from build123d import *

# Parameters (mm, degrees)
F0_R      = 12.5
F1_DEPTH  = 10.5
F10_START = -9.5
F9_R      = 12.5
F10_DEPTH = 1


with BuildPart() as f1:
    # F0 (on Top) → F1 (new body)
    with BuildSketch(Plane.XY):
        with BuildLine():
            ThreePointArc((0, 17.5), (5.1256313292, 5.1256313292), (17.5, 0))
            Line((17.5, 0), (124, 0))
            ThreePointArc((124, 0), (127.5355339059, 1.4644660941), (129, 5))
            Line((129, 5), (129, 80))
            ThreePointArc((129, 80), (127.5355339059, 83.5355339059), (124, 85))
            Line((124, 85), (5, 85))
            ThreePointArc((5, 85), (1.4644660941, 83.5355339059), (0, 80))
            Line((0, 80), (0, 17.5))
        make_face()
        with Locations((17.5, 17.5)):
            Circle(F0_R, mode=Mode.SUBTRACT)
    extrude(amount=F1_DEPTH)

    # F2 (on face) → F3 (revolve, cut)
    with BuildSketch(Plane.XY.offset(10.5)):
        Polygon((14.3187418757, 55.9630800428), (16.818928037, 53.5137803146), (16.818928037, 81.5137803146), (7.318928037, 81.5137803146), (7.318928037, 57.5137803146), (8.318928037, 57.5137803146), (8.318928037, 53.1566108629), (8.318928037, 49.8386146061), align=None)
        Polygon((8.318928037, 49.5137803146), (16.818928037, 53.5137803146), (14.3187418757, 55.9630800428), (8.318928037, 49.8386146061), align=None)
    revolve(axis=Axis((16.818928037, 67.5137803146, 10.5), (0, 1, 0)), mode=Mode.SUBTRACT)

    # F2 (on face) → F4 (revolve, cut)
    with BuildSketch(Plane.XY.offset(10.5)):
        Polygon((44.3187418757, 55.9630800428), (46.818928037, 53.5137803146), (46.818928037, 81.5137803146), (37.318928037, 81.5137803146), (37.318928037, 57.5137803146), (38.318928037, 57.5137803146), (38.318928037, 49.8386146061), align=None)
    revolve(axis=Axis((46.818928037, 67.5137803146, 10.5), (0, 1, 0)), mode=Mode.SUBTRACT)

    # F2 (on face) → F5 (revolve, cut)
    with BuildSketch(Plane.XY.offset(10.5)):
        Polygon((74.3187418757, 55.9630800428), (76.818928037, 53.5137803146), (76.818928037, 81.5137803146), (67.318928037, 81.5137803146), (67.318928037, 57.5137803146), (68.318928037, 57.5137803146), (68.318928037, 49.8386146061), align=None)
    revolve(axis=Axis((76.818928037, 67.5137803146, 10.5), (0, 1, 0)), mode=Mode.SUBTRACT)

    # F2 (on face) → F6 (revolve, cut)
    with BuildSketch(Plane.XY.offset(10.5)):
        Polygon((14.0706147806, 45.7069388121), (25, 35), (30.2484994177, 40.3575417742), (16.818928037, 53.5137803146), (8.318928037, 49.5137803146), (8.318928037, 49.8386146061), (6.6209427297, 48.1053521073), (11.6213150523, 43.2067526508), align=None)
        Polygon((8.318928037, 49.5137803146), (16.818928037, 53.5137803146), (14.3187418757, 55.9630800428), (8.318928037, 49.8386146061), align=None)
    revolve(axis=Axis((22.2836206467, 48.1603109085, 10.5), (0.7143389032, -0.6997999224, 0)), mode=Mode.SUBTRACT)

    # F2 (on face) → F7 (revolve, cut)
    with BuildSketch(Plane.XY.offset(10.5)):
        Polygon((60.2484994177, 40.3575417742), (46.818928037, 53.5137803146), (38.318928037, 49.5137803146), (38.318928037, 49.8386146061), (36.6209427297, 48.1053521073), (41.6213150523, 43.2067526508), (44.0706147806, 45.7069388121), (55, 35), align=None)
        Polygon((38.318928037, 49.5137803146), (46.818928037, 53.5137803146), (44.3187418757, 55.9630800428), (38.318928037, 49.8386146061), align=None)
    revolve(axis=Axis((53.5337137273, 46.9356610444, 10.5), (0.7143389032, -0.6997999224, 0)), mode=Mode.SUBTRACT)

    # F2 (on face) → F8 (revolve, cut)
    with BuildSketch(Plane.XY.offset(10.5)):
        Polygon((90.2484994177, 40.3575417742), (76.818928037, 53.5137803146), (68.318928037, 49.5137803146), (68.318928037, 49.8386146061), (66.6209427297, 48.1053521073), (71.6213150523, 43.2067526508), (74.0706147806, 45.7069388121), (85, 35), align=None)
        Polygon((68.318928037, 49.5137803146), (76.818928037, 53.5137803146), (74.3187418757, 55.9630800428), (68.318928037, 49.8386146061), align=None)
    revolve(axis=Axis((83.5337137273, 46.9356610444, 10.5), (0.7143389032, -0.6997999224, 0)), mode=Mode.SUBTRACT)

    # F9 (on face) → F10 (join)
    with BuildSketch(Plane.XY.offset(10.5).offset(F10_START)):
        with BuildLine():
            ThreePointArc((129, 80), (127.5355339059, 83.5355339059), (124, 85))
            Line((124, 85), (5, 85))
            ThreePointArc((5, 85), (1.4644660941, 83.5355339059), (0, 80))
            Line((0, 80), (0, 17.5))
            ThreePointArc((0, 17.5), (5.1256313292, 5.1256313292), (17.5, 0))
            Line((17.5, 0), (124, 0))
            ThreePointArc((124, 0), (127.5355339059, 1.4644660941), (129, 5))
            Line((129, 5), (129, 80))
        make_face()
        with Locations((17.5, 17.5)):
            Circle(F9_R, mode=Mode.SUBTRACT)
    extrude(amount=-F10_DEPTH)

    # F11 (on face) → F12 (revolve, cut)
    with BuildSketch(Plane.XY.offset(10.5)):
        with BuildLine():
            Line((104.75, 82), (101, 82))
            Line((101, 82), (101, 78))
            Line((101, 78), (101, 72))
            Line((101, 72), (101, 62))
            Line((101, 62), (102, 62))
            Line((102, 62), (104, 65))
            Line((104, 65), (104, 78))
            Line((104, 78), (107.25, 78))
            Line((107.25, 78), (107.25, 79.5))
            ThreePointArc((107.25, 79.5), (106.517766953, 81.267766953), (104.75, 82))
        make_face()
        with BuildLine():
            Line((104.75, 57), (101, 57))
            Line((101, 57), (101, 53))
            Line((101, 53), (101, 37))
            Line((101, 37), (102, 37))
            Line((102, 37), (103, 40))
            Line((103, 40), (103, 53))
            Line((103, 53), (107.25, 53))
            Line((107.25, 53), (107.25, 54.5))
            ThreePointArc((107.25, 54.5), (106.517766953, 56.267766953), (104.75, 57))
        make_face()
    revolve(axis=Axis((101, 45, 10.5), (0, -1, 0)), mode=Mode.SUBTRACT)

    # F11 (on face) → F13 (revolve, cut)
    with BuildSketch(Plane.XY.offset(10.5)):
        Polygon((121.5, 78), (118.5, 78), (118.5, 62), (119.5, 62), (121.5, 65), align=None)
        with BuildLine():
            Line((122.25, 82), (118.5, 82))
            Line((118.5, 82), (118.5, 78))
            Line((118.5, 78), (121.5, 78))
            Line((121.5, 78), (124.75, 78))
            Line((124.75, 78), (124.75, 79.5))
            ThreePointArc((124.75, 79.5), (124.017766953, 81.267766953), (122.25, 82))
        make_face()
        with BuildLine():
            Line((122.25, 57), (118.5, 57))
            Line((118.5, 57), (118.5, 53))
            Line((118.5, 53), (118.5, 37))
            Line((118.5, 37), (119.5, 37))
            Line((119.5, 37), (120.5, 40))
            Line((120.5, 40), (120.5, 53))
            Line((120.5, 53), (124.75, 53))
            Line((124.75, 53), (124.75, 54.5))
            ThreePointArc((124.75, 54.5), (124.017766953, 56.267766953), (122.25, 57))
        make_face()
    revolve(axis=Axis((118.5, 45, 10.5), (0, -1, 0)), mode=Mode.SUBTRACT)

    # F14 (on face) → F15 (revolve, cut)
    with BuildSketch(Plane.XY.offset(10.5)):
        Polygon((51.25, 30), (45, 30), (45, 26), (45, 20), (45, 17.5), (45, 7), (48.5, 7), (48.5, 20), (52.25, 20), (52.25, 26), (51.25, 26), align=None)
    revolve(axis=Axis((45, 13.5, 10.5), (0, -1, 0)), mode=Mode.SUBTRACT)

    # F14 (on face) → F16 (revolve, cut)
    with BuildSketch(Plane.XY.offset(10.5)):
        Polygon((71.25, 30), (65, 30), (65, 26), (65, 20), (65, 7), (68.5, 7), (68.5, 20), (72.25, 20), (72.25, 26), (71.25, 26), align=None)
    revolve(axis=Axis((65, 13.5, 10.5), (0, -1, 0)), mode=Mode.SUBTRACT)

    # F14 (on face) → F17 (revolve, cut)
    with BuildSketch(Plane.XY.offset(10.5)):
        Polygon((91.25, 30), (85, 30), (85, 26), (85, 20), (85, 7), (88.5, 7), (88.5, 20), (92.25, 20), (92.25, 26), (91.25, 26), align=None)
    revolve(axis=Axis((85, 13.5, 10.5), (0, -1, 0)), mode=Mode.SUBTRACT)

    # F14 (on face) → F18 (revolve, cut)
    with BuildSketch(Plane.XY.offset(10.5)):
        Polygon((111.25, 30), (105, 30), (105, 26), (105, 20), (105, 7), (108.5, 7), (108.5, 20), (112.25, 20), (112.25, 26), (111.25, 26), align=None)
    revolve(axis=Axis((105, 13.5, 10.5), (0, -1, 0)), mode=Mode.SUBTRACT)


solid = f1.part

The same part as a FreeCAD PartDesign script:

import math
import FreeCAD as App
import Part
import Sketcher
from FreeCAD import Vector


def add_polygon(sketch, points):
    """Adds a closed chain of lines whose ends are joined by coincident constraints."""
    first, n = sketch.GeometryCount, len(points)
    for a, b in zip(points, points[1:] + points[:1]):
        sketch.addGeometry(Part.LineSegment(App.Vector(*a, 0), App.Vector(*b, 0)), False)
    for i in range(n):
        sketch.addConstraint(Sketcher.Constraint("Coincident", first + i, 2, first + (i + 1) % n, 1))

doc = App.newDocument("Part")
params = doc.addObject("Spreadsheet::Sheet", "Params")
for row, (alias, value) in enumerate([
    ("sketch1_diameter", "25 mm"),
    ("sketch1_radius", "5 mm"),
    ("sketch1_radius2", "17.5 mm"),
    ("sketch1_width", "119 mm"),
    ("sketch1_height", "75 mm"),
    ("pad1_length", "10.5 mm"),
    ("sketch2_width", "1 mm"),
    ("sketch2_height", "28 mm"),
    ("sketch2_height2", "24 mm"),
    ("sketch2_height3", "8 mm"),
    ("sketch2_width2", "9.5 mm"),
    ("groove_angle", "360 deg"),
    ("sketch3_width", "1 mm"),
    ("sketch3_height", "28 mm"),
    ("sketch3_height2", "24 mm"),
    ("sketch3_width2", "9.5 mm"),
    ("sketch3_length", "3.5 mm"),
    ("groove2_angle", "360 deg"),
    ("sketch4_width", "1 mm"),
    ("sketch4_height", "28 mm"),
    ("sketch4_height2", "24 mm"),
    ("sketch4_width2", "9.5 mm"),
    ("sketch4_length", "3.5 mm"),
    ("groove3_angle", "360 deg"),
    ("sketch5_length", "7 mm"),
    ("sketch5_length2", "15.3 mm"),
    ("sketch5_length3", "7.5 mm"),
    ("sketch5_length4", "18.8 mm"),
    ("groove4_angle", "360 deg"),
    ("sketch6_length", "7 mm"),
    ("sketch6_length2", "18.8 mm"),
    ("sketch6_length3", "3.5 mm"),
    ("sketch6_length4", "7.5 mm"),
    ("groove5_angle", "360 deg"),
    ("sketch7_length", "7 mm"),
    ("sketch7_length2", "18.8 mm"),
    ("sketch7_length3", "3.5 mm"),
    ("sketch7_length4", "7.5 mm"),
    ("groove6_angle", "360 deg"),
    ("sketch8_diameter", "25 mm"),
    ("sketch8_radius", "5 mm"),
    ("sketch8_radius2", "17.5 mm"),
    ("sketch8_width", "119 mm"),
    ("sketch8_height", "75 mm"),
    ("pad2_length", "1 mm"),
    ("sketch9_radius", "2.5 mm"),
    ("sketch9_width", "1 mm"),
    ("sketch9_height", "20 mm"),
    ("sketch9_height2", "13 mm"),
    ("sketch9_height3", "45 mm"),
    ("groove7_angle", "360 deg"),
    ("sketch10_radius", "2.5 mm"),
    ("sketch10_width", "1 mm"),
    ("sketch10_height", "13 mm"),
    ("sketch10_height2", "20 mm"),
    ("sketch10_height3", "45 mm"),
    ("groove8_angle", "360 deg"),
    ("sketch11_width", "1 mm"),
    ("sketch11_height", "23 mm"),
    ("sketch11_height2", "13 mm"),
    ("sketch11_height3", "6 mm"),
    ("sketch11_width2", "3.5 mm"),
    ("groove9_angle", "360 deg"),
    ("sketch12_width", "1 mm"),
    ("sketch12_height", "23 mm"),
    ("sketch12_height2", "13 mm"),
    ("sketch12_height3", "6 mm"),
    ("sketch12_width2", "3.5 mm"),
    ("groove10_angle", "360 deg"),
    ("sketch13_width", "1 mm"),
    ("sketch13_height", "23 mm"),
    ("sketch13_height2", "13 mm"),
    ("sketch13_height3", "6 mm"),
    ("sketch13_width2", "3.5 mm"),
    ("groove11_angle", "360 deg"),
    ("sketch14_width", "1 mm"),
    ("sketch14_height", "23 mm"),
    ("sketch14_height2", "13 mm"),
    ("sketch14_height3", "6 mm"),
    ("sketch14_width2", "3.5 mm"),
    ("groove12_angle", "360 deg"),
], start=1):
    params.set(f"A{row}", alias)
    params.set(f"B{row}", "=" + value)
    params.setAlias(f"B{row}", alias)

body = doc.addObject("PartDesign::Body", "Body")

sketch1 = body.newObject("Sketcher::SketchObject", "Sketch")
sketch1.AttachmentSupport = (doc.getObject("XY_Plane"), [""])
sketch1.MapMode = "FlatFace"
sketch1.addGeometry([
    Part.ArcOfCircle(Part.Circle(Vector(18, 18, 0), Vector(0, 0, 1), 18), math.radians(180), math.radians(270)),
    Part.LineSegment(Vector(18, 0, 0), Vector(124, 0, 0)),
    Part.ArcOfCircle(Part.Circle(Vector(124, 5, 0), Vector(0, 0, 1), 5), math.radians(-90), math.radians(0)),
    Part.LineSegment(Vector(129, 5, 0), Vector(129, 80, 0)),
    Part.ArcOfCircle(Part.Circle(Vector(124, 80, 0), Vector(0, 0, 1), 5), math.radians(0), math.radians(90)),
    Part.LineSegment(Vector(124, 85, 0), Vector(5, 85, 0)),
    Part.ArcOfCircle(Part.Circle(Vector(5, 80, 0), Vector(0, 0, 1), 5), math.radians(90), math.radians(180)),
    Part.LineSegment(Vector(0, 80, 0), Vector(0, 18, 0)),
    Part.Circle(Vector(18, 18, 0), Vector(0, 0, 1), 12),
], False)
sketch1.addConstraint([
    Sketcher.Constraint("Tangent", 0, 2, 1, 1),
    Sketcher.Constraint("Tangent", 1, 2, 2, 1),
    Sketcher.Constraint("Tangent", 2, 2, 3, 1),
    Sketcher.Constraint("Tangent", 3, 2, 4, 1),
    Sketcher.Constraint("Tangent", 4, 2, 5, 1),
    Sketcher.Constraint("Tangent", 5, 2, 6, 1),
    Sketcher.Constraint("Tangent", 6, 2, 7, 1),
    Sketcher.Constraint("Tangent", 7, 2, 0, 1),
    Sketcher.Constraint("Horizontal", 1),
    Sketcher.Constraint("Vertical", 3),
    Sketcher.Constraint("Horizontal", 5),
    Sketcher.Constraint("Vertical", 7),
    Sketcher.Constraint("Coincident", 8, 3, 0, 3),
    Sketcher.Constraint("Equal", 2, 4),
    Sketcher.Constraint("Equal", 4, 6),
    Sketcher.Constraint("PointOnObject", 0, 2, -1),
    Sketcher.Constraint("PointOnObject", 6, 2, -2),
    Sketcher.Constraint("Diameter", 8, 25.0),
    Sketcher.Constraint("Radius", 2, 5.0),
    Sketcher.Constraint("Radius", 0, 17.5),
    Sketcher.Constraint("DistanceX", 5, 2, 5, 1, 119.0),
    Sketcher.Constraint("DistanceY", 3, 1, 3, 2, 75.0),
])
sketch1.setExpression("Constraints[17]", "Params.sketch1_diameter")
sketch1.setExpression("Constraints[18]", "Params.sketch1_radius")
sketch1.setExpression("Constraints[19]", "Params.sketch1_radius2")
sketch1.setExpression("Constraints[20]", "Params.sketch1_width")
sketch1.setExpression("Constraints[21]", "Params.sketch1_height")
pad1 = body.newObject("PartDesign::Pad", "Pad")
pad1.Profile = sketch1
pad1.setExpression("Length", "Params.pad1_length")

sketch2 = body.newObject("Sketcher::SketchObject", "Sketch001")
sketch2.AttachmentSupport = (doc.getObject("XY_Plane"), [""])
sketch2.MapMode = "FlatFace"
sketch2.AttachmentOffset = App.Placement(Vector(0, 0, 10.5), App.Rotation())
add_polygon(sketch2, [(16.8, 53.5), (16.8, 81.5), (7.3, 81.5), (7.3, 57.5), (8.3, 57.5), (8.3, 49.5)])
sketch2.addGeometry(Part.LineSegment(Vector(16.8, 49.5, 0), Vector(16.8, 81.5, 0)), True)
sketch2.addConstraint([
    Sketcher.Constraint("Vertical", 0),
    Sketcher.Constraint("Horizontal", 1),
    Sketcher.Constraint("Vertical", 2),
    Sketcher.Constraint("Horizontal", 3),
    Sketcher.Constraint("Vertical", 4),
    Sketcher.Constraint("Vertical", 6),
    Sketcher.Constraint("Coincident", 6, 2, 0, 2),
    Sketcher.Constraint("Horizontal", 4, 2, 6, 1),
    Sketcher.Constraint("DistanceX", 3, 1, 3, 2, 1.0),
    Sketcher.Constraint("DistanceY", 0, 1, 0, 2, 28.0),
    Sketcher.Constraint("DistanceY", 2, 2, 2, 1, 24.0),
    Sketcher.Constraint("DistanceY", 4, 2, 4, 1, 8.0),
    Sketcher.Constraint("DistanceX", 1, 2, 1, 1, 9.5),
    Sketcher.Constraint("DistanceX", -1, 1, 0, 2, 16.818928),
    Sketcher.Constraint("DistanceY", -1, 1, 0, 2, 81.51378),
])
sketch2.setExpression("Constraints[14]", "Params.sketch2_width")
sketch2.setExpression("Constraints[15]", "Params.sketch2_height")
sketch2.setExpression("Constraints[16]", "Params.sketch2_height2")
sketch2.setExpression("Constraints[17]", "Params.sketch2_height3")
sketch2.setExpression("Constraints[18]", "Params.sketch2_width2")
groove = body.newObject("PartDesign::Groove", "Groove")
groove.Profile = sketch2
groove.ReferenceAxis = (sketch2, ["Axis0"])
groove.setExpression("Angle", "Params.groove_angle")

sketch3 = body.newObject("Sketcher::SketchObject", "Sketch002")
sketch3.AttachmentSupport = (doc.getObject("XY_Plane"), [""])
sketch3.MapMode = "FlatFace"
sketch3.AttachmentOffset = App.Placement(Vector(0, 0, 10.5), App.Rotation())
add_polygon(sketch3, [(44.3, 56), (46.8, 53.5), (46.8, 81.5), (37.3, 81.5), (37.3, 57.5), (38.3, 57.5), (38.3, 49.8)])
sketch3.addGeometry(Part.LineSegment(Vector(46.8, 49.8, 0), Vector(46.8, 81.5, 0)), True)
sketch3.addConstraint([
    Sketcher.Constraint("Vertical", 1),
    Sketcher.Constraint("Horizontal", 2),
    Sketcher.Constraint("Vertical", 3),
    Sketcher.Constraint("Horizontal", 4),
    Sketcher.Constraint("Vertical", 5),
    Sketcher.Constraint("Vertical", 7),
    Sketcher.Constraint("Coincident", 7, 2, 1, 2),
    Sketcher.Constraint("Perpendicular", 0, 6),
    Sketcher.Constraint("Horizontal", 5, 2, 7, 1),
    Sketcher.Constraint("DistanceX", 4, 1, 4, 2, 1.0),
    Sketcher.Constraint("DistanceY", 1, 1, 1, 2, 28.0),
    Sketcher.Constraint("DistanceY", 3, 2, 3, 1, 24.0),
    Sketcher.Constraint("DistanceX", 2, 2, 2, 1, 9.5),
    Sketcher.Constraint("Distance", 0, 3.5),
    Sketcher.Constraint("DistanceY", 0, 2, 6, 2, 2.4493),
    Sketcher.Constraint("DistanceX", -1, 1, 0, 2, 46.818928),
    Sketcher.Constraint("DistanceY", -1, 1, 0, 2, 53.51378),
])
sketch3.setExpression("Constraints[16]", "Params.sketch3_width")
sketch3.setExpression("Constraints[17]", "Params.sketch3_height")
sketch3.setExpression("Constraints[18]", "Params.sketch3_height2")
sketch3.setExpression("Constraints[19]", "Params.sketch3_width2")
sketch3.setExpression("Constraints[20]", "Params.sketch3_length")
groove2 = body.newObject("PartDesign::Groove", "Groove001")
groove2.Profile = sketch3
groove2.ReferenceAxis = (sketch3, ["Axis0"])
groove2.setExpression("Angle", "Params.groove2_angle")

sketch4 = body.newObject("Sketcher::SketchObject", "Sketch003")
sketch4.AttachmentSupport = (doc.getObject("XY_Plane"), [""])
sketch4.MapMode = "FlatFace"
sketch4.AttachmentOffset = App.Placement(Vector(0, 0, 10.5), App.Rotation())
add_polygon(sketch4, [(74.3, 56), (76.8, 53.5), (76.8, 81.5), (67.3, 81.5), (67.3, 57.5), (68.3, 57.5), (68.3, 49.8)])
sketch4.addGeometry(Part.LineSegment(Vector(76.8, 49.8, 0), Vector(76.8, 81.5, 0)), True)
sketch4.addConstraint([
    Sketcher.Constraint("Vertical", 1),
    Sketcher.Constraint("Horizontal", 2),
    Sketcher.Constraint("Vertical", 3),
    Sketcher.Constraint("Horizontal", 4),
    Sketcher.Constraint("Vertical", 5),
    Sketcher.Constraint("Vertical", 7),
    Sketcher.Constraint("Coincident", 7, 2, 1, 2),
    Sketcher.Constraint("Perpendicular", 0, 6),
    Sketcher.Constraint("Horizontal", 5, 2, 7, 1),
    Sketcher.Constraint("DistanceX", 4, 1, 4, 2, 1.0),
    Sketcher.Constraint("DistanceY", 1, 1, 1, 2, 28.0),
    Sketcher.Constraint("DistanceY", 3, 2, 3, 1, 24.0),
    Sketcher.Constraint("DistanceX", 2, 2, 2, 1, 9.5),
    Sketcher.Constraint("Distance", 0, 3.5),
    Sketcher.Constraint("DistanceY", 0, 2, 6, 2, 2.4493),
    Sketcher.Constraint("DistanceX", -1, 1, 0, 2, 76.818928),
    Sketcher.Constraint("DistanceY", -1, 1, 0, 2, 53.51378),
])
sketch4.setExpression("Constraints[16]", "Params.sketch4_width")
sketch4.setExpression("Constraints[17]", "Params.sketch4_height")
sketch4.setExpression("Constraints[18]", "Params.sketch4_height2")
sketch4.setExpression("Constraints[19]", "Params.sketch4_width2")
sketch4.setExpression("Constraints[20]", "Params.sketch4_length")
groove3 = body.newObject("PartDesign::Groove", "Groove002")
groove3.Profile = sketch4
groove3.ReferenceAxis = (sketch4, ["Axis0"])
groove3.setExpression("Angle", "Params.groove3_angle")

sketch5 = body.newObject("Sketcher::SketchObject", "Sketch004")
sketch5.AttachmentSupport = (doc.getObject("XY_Plane"), [""])
sketch5.MapMode = "FlatFace"
sketch5.AttachmentOffset = App.Placement(Vector(0, 0, 10.5), App.Rotation())
add_polygon(sketch5, [(14.1, 45.7), (25, 35), (30.2, 40.4), (16.8, 53.5), (14.3, 56), (8.3, 49.8), (6.6, 48.1), (11.6, 43.2)])
sketch5.addGeometry(Part.LineSegment(Vector(14.3, 56, 0), Vector(30.2, 40.4, 0)), True)
sketch5.addConstraint([
    Sketcher.Constraint("Coincident", 8, 1, 3, 2),
    Sketcher.Constraint("Coincident", 8, 2, 1, 2),
    Sketcher.Constraint("Perpendicular", 0, 1),
    Sketcher.Constraint("Perpendicular", 1, 2),
    Sketcher.Constraint("Parallel", 2, 3),
    Sketcher.Constraint("Perpendicular", 3, 4),
    Sketcher.Constraint("Parallel", 4, 5),
    Sketcher.Constraint("Perpendicular", 5, 6),
    Sketcher.Constraint("Perpendicular", 6, 7),
    Sketcher.Constraint("Equal", 3, 7),
    Sketcher.Constraint("Distance", 6, 7.0),
    Sketcher.Constraint("DistanceX", -1, 1, 0, 2, 25.0),
    Sketcher.Constraint("DistanceY", -1, 1, 0, 2, 35.0),
    Sketcher.Constraint("Distance", 0, 15.3),
    Sketcher.Constraint("Distance", 1, 7.5),
    Sketcher.Constraint("Distance", 2, 18.8),
    Sketcher.Constraint("DistanceX", 4, 2, 2, 2, 8.5),
    Sketcher.Constraint("DistanceX", -1, 1, 1, 2, 30.248499),
])
sketch5.setExpression("Constraints[18]", "Params.sketch5_length")
sketch5.setExpression("Constraints[21]", "Params.sketch5_length2")
sketch5.setExpression("Constraints[22]", "Params.sketch5_length3")
sketch5.setExpression("Constraints[23]", "Params.sketch5_length4")
groove4 = body.newObject("PartDesign::Groove", "Groove003")
groove4.Profile = sketch5
groove4.ReferenceAxis = (sketch5, ["Axis0"])
groove4.setExpression("Angle", "Params.groove4_angle")

sketch6 = body.newObject("Sketcher::SketchObject", "Sketch005")
sketch6.AttachmentSupport = (doc.getObject("XY_Plane"), [""])
sketch6.MapMode = "FlatFace"
sketch6.AttachmentOffset = App.Placement(Vector(0, 0, 10.5), App.Rotation())
add_polygon(sketch6, [(60.2, 40.4), (46.8, 53.5), (44.3, 56), (38.3, 49.8), (36.6, 48.1), (41.6, 43.2), (44.1, 45.7), (55, 35)])
sketch6.addGeometry(Part.LineSegment(Vector(44.3, 56, 0), Vector(60.2, 40.4, 0)), True)
sketch6.addConstraint([
    Sketcher.Constraint("Coincident", 8, 1, 1, 2),
    Sketcher.Constraint("Coincident", 8, 2, 7, 2),
    Sketcher.Constraint("Parallel", 0, 1),
    Sketcher.Constraint("Perpendicular", 1, 2),
    Sketcher.Constraint("Parallel", 2, 3),
    Sketcher.Constraint("Perpendicular", 3, 4),
    Sketcher.Constraint("Perpendicular", 4, 5),
    Sketcher.Constraint("Perpendicular", 5, 6),
    Sketcher.Constraint("Perpendicular", 6, 7),
    Sketcher.Constraint("Equal", 1, 5),
    Sketcher.Constraint("Distance", 4, 7.0),
    Sketcher.Constraint("DistanceX", -1, 1, 6, 2, 55.0),
    Sketcher.Constraint("DistanceY", -1, 1, 6, 2, 35.0),
    Sketcher.Constraint("Distance", 0, 18.8),
    Sketcher.Constraint("Distance", 1, 3.5),
    Sketcher.Constraint("Distance", 7, 7.5),
    Sketcher.Constraint("DistanceX", 2, 2, 0, 2, 8.5),
    Sketcher.Constraint("DistanceX", -1, 1, 7, 2, 60.248499),
])
sketch6.setExpression("Constraints[18]", "Params.sketch6_length")
sketch6.setExpression("Constraints[21]", "Params.sketch6_length2")
sketch6.setExpression("Constraints[22]", "Params.sketch6_length3")
sketch6.setExpression("Constraints[23]", "Params.sketch6_length4")
groove5 = body.newObject("PartDesign::Groove", "Groove004")
groove5.Profile = sketch6
groove5.ReferenceAxis = (sketch6, ["Axis0"])
groove5.setExpression("Angle", "Params.groove5_angle")

sketch7 = body.newObject("Sketcher::SketchObject", "Sketch006")
sketch7.AttachmentSupport = (doc.getObject("XY_Plane"), [""])
sketch7.MapMode = "FlatFace"
sketch7.AttachmentOffset = App.Placement(Vector(0, 0, 10.5), App.Rotation())
add_polygon(sketch7, [(90.2, 40.4), (76.8, 53.5), (74.3, 56), (68.3, 49.8), (66.6, 48.1), (71.6, 43.2), (74.1, 45.7), (85, 35)])
sketch7.addGeometry(Part.LineSegment(Vector(74.3, 56, 0), Vector(90.2, 40.4, 0)), True)
sketch7.addConstraint([
    Sketcher.Constraint("Coincident", 8, 1, 1, 2),
    Sketcher.Constraint("Coincident", 8, 2, 7, 2),
    Sketcher.Constraint("Parallel", 0, 1),
    Sketcher.Constraint("Perpendicular", 1, 2),
    Sketcher.Constraint("Parallel", 2, 3),
    Sketcher.Constraint("Perpendicular", 3, 4),
    Sketcher.Constraint("Perpendicular", 4, 5),
    Sketcher.Constraint("Perpendicular", 5, 6),
    Sketcher.Constraint("Perpendicular", 6, 7),
    Sketcher.Constraint("Equal", 1, 5),
    Sketcher.Constraint("Distance", 4, 7.0),
    Sketcher.Constraint("DistanceX", -1, 1, 6, 2, 85.0),
    Sketcher.Constraint("DistanceY", -1, 1, 6, 2, 35.0),
    Sketcher.Constraint("Distance", 0, 18.8),
    Sketcher.Constraint("Distance", 1, 3.5),
    Sketcher.Constraint("Distance", 7, 7.5),
    Sketcher.Constraint("DistanceX", 2, 2, 0, 2, 8.5),
    Sketcher.Constraint("DistanceX", -1, 1, 7, 2, 90.248499),
])
sketch7.setExpression("Constraints[18]", "Params.sketch7_length")
sketch7.setExpression("Constraints[21]", "Params.sketch7_length2")
sketch7.setExpression("Constraints[22]", "Params.sketch7_length3")
sketch7.setExpression("Constraints[23]", "Params.sketch7_length4")
groove6 = body.newObject("PartDesign::Groove", "Groove005")
groove6.Profile = sketch7
groove6.ReferenceAxis = (sketch7, ["Axis0"])
groove6.setExpression("Angle", "Params.groove6_angle")

sketch8 = body.newObject("Sketcher::SketchObject", "Sketch007")
sketch8.AttachmentSupport = (doc.getObject("XY_Plane"), [""])
sketch8.MapMode = "FlatFace"
sketch8.AttachmentOffset = App.Placement(Vector(0, 0, 1), App.Rotation())
sketch8.addGeometry([
    Part.ArcOfCircle(Part.Circle(Vector(124, 80, 0), Vector(0, 0, 1), 5), math.radians(0), math.radians(90)),
    Part.LineSegment(Vector(124, 85, 0), Vector(5, 85, 0)),
    Part.ArcOfCircle(Part.Circle(Vector(5, 80, 0), Vector(0, 0, 1), 5), math.radians(90), math.radians(180)),
    Part.LineSegment(Vector(0, 80, 0), Vector(0, 18, 0)),
    Part.ArcOfCircle(Part.Circle(Vector(18, 18, 0), Vector(0, 0, 1), 18), math.radians(180), math.radians(270)),
    Part.LineSegment(Vector(18, 0, 0), Vector(124, 0, 0)),
    Part.ArcOfCircle(Part.Circle(Vector(124, 5, 0), Vector(0, 0, 1), 5), math.radians(-90), math.radians(0)),
    Part.LineSegment(Vector(129, 5, 0), Vector(129, 80, 0)),
    Part.Circle(Vector(18, 18, 0), Vector(0, 0, 1), 12),
], False)
sketch8.addConstraint([
    Sketcher.Constraint("Tangent", 0, 2, 1, 1),
    Sketcher.Constraint("Tangent", 1, 2, 2, 1),
    Sketcher.Constraint("Tangent", 2, 2, 3, 1),
    Sketcher.Constraint("Tangent", 3, 2, 4, 1),
    Sketcher.Constraint("Tangent", 4, 2, 5, 1),
    Sketcher.Constraint("Tangent", 5, 2, 6, 1),
    Sketcher.Constraint("Tangent", 6, 2, 7, 1),
    Sketcher.Constraint("Tangent", 7, 2, 0, 1),
    Sketcher.Constraint("Horizontal", 1),
    Sketcher.Constraint("Vertical", 3),
    Sketcher.Constraint("Horizontal", 5),
    Sketcher.Constraint("Vertical", 7),
    Sketcher.Constraint("Coincident", 8, 3, 4, 3),
    Sketcher.Constraint("Equal", 0, 2),
    Sketcher.Constraint("Equal", 2, 6),
    Sketcher.Constraint("PointOnObject", 2, 2, -2),
    Sketcher.Constraint("PointOnObject", 4, 2, -1),
    Sketcher.Constraint("Diameter", 8, 25.0),
    Sketcher.Constraint("Radius", 0, 5.0),
    Sketcher.Constraint("Radius", 4, 17.5),
    Sketcher.Constraint("DistanceX", 1, 2, 1, 1, 119.0),
    Sketcher.Constraint("DistanceY", 7, 1, 7, 2, 75.0),
])
sketch8.setExpression("Constraints[17]", "Params.sketch8_diameter")
sketch8.setExpression("Constraints[18]", "Params.sketch8_radius")
sketch8.setExpression("Constraints[19]", "Params.sketch8_radius2")
sketch8.setExpression("Constraints[20]", "Params.sketch8_width")
sketch8.setExpression("Constraints[21]", "Params.sketch8_height")
pad2 = body.newObject("PartDesign::Pad", "Pad001")
pad2.Profile = sketch8
pad2.setExpression("Length", "Params.pad2_length")
pad2.Reversed = True

sketch9 = body.newObject("Sketcher::SketchObject", "Sketch008")
sketch9.AttachmentSupport = (doc.getObject("XY_Plane"), [""])
sketch9.MapMode = "FlatFace"
sketch9.AttachmentOffset = App.Placement(Vector(0, 0, 10.5), App.Rotation())
sketch9.addGeometry([
    Part.LineSegment(Vector(104.8, 82, 0), Vector(101, 82, 0)),
    Part.LineSegment(Vector(101, 82, 0), Vector(101, 62, 0)),
    Part.LineSegment(Vector(101, 62, 0), Vector(102, 62, 0)),
    Part.LineSegment(Vector(102, 62, 0), Vector(104, 65, 0)),
    Part.LineSegment(Vector(104, 65, 0), Vector(104, 78, 0)),
    Part.LineSegment(Vector(104, 78, 0), Vector(107.2, 78, 0)),
    Part.LineSegment(Vector(107.2, 78, 0), Vector(107.2, 79.5, 0)),
    Part.ArcOfCircle(Part.Circle(Vector(104.8, 79.5, 0), Vector(0, 0, 1), 2.5), math.radians(0), math.radians(90)),
    Part.LineSegment(Vector(104.8, 57, 0), Vector(101, 57, 0)),
    Part.LineSegment(Vector(101, 57, 0), Vector(101, 37, 0)),
    Part.LineSegment(Vector(101, 37, 0), Vector(102, 37, 0)),
    Part.LineSegment(Vector(102, 37, 0), Vector(103, 40, 0)),
    Part.LineSegment(Vector(103, 40, 0), Vector(103, 53, 0)),
    Part.LineSegment(Vector(103, 53, 0), Vector(107.2, 53, 0)),
    Part.LineSegment(Vector(107.2, 53, 0), Vector(107.2, 54.5, 0)),
    Part.ArcOfCircle(Part.Circle(Vector(104.8, 54.5, 0), Vector(0, 0, 1), 2.5), math.radians(0), math.radians(90)),
], False)
sketch9.addGeometry(Part.LineSegment(Vector(101, 82, 0), Vector(101, 37, 0)), True)
sketch9.addConstraint([
    Sketcher.Constraint("Coincident", 0, 2, 1, 1),
    Sketcher.Constraint("Coincident", 1, 2, 2, 1),
    Sketcher.Constraint("Coincident", 2, 2, 3, 1),
    Sketcher.Constraint("Coincident", 3, 2, 4, 1),
    Sketcher.Constraint("Coincident", 4, 2, 5, 1),
    Sketcher.Constraint("Coincident", 5, 2, 6, 1),
    Sketcher.Constraint("Tangent", 6, 2, 7, 1),
    Sketcher.Constraint("Tangent", 7, 2, 0, 1),
    Sketcher.Constraint("Coincident", 8, 2, 9, 1),
    Sketcher.Constraint("Coincident", 9, 2, 10, 1),
    Sketcher.Constraint("Coincident", 10, 2, 11, 1),
    Sketcher.Constraint("Coincident", 11, 2, 12, 1),
    Sketcher.Constraint("Coincident", 12, 2, 13, 1),
    Sketcher.Constraint("Coincident", 13, 2, 14, 1),
    Sketcher.Constraint("Tangent", 14, 2, 15, 1),
    Sketcher.Constraint("Tangent", 15, 2, 8, 1),
    Sketcher.Constraint("Horizontal", 0),
    Sketcher.Constraint("Vertical", 1),
    Sketcher.Constraint("Horizontal", 2),
    Sketcher.Constraint("Vertical", 4),
    Sketcher.Constraint("Horizontal", 5),
    Sketcher.Constraint("Vertical", 6),
    Sketcher.Constraint("Horizontal", 8),
    Sketcher.Constraint("Vertical", 9),
    Sketcher.Constraint("Horizontal", 10),
    Sketcher.Constraint("Vertical", 12),
    Sketcher.Constraint("Horizontal", 13),
    Sketcher.Constraint("Vertical", 14),
    Sketcher.Constraint("Vertical", 16),
    Sketcher.Constraint("Coincident", 16, 1, 0, 2),
    Sketcher.Constraint("Coincident", 16, 2, 9, 2),
    Sketcher.Constraint("Equal", 7, 15),
    Sketcher.Constraint("Vertical", 7, 3, 15, 3),
    Sketcher.Constraint("Vertical", 2, 2, 10, 2),
    Sketcher.Constraint("Equal", 1, 9),
    Sketcher.Constraint("Equal", 4, 12),
    Sketcher.Constraint("Equal", 6, 14),
    Sketcher.Constraint("Radius", 7, 2.5),
    Sketcher.Constraint("DistanceX", 2, 1, 2, 2, 1.0),
    Sketcher.Constraint("DistanceY", 1, 2, 1, 1, 20.0),
    Sketcher.Constraint("DistanceY", 4, 1, 4, 2, 13.0),
    Sketcher.Constraint("DistanceY", 16, 2, 16, 1, 45.0),
    Sketcher.Constraint("DistanceY", 6, 1, 6, 2, 1.5),
    Sketcher.Constraint("DistanceX", -1, 1, 0, 2, 101.0),
    Sketcher.Constraint("DistanceY", -1, 1, 0, 2, 82.0),
    Sketcher.Constraint("DistanceX", -1, 1, 3, 2, 104.0),
    Sketcher.Constraint("DistanceX", -1, 1, 11, 2, 103.0),
    Sketcher.Constraint("DistanceX", 0, 2, 0, 1, 3.75),
])
sketch9.setExpression("Constraints[37]", "Params.sketch9_radius")
sketch9.setExpression("Constraints[38]", "Params.sketch9_width")
sketch9.setExpression("Constraints[39]", "Params.sketch9_height")
sketch9.setExpression("Constraints[40]", "Params.sketch9_height2")
sketch9.setExpression("Constraints[41]", "Params.sketch9_height3")
groove7 = body.newObject("PartDesign::Groove", "Groove006")
groove7.Profile = sketch9
groove7.ReferenceAxis = (sketch9, ["Axis0"])
groove7.setExpression("Angle", "Params.groove7_angle")

sketch10 = body.newObject("Sketcher::SketchObject", "Sketch009")
sketch10.AttachmentSupport = (doc.getObject("XY_Plane"), [""])
sketch10.MapMode = "FlatFace"
sketch10.AttachmentOffset = App.Placement(Vector(0, 0, 10.5), App.Rotation())
sketch10.addGeometry([
    Part.LineSegment(Vector(118.5, 62, 0), Vector(119.5, 62, 0)),
    Part.LineSegment(Vector(119.5, 62, 0), Vector(121.5, 65, 0)),
    Part.LineSegment(Vector(121.5, 65, 0), Vector(121.5, 78, 0)),
    Part.LineSegment(Vector(121.5, 78, 0), Vector(124.8, 78, 0)),
    Part.LineSegment(Vector(124.8, 78, 0), Vector(124.8, 79.5, 0)),
    Part.ArcOfCircle(Part.Circle(Vector(122.2, 79.5, 0), Vector(0, 0, 1), 2.5), math.radians(0), math.radians(90)),
    Part.LineSegment(Vector(122.2, 82, 0), Vector(118.5, 82, 0)),
    Part.LineSegment(Vector(118.5, 82, 0), Vector(118.5, 62, 0)),
    Part.LineSegment(Vector(122.2, 57, 0), Vector(118.5, 57, 0)),
    Part.LineSegment(Vector(118.5, 57, 0), Vector(118.5, 37, 0)),
    Part.LineSegment(Vector(118.5, 37, 0), Vector(119.5, 37, 0)),
    Part.LineSegment(Vector(119.5, 37, 0), Vector(120.5, 40, 0)),
    Part.LineSegment(Vector(120.5, 40, 0), Vector(120.5, 53, 0)),
    Part.LineSegment(Vector(120.5, 53, 0), Vector(124.8, 53, 0)),
    Part.LineSegment(Vector(124.8, 53, 0), Vector(124.8, 54.5, 0)),
    Part.ArcOfCircle(Part.Circle(Vector(122.2, 54.5, 0), Vector(0, 0, 1), 2.5), math.radians(0), math.radians(90)),
], False)
sketch10.addGeometry(Part.LineSegment(Vector(118.5, 82, 0), Vector(118.5, 37, 0)), True)
sketch10.addConstraint([
    Sketcher.Constraint("Coincident", 0, 2, 1, 1),
    Sketcher.Constraint("Coincident", 1, 2, 2, 1),
    Sketcher.Constraint("Coincident", 2, 2, 3, 1),
    Sketcher.Constraint("Coincident", 3, 2, 4, 1),
    Sketcher.Constraint("Tangent", 4, 2, 5, 1),
    Sketcher.Constraint("Tangent", 5, 2, 6, 1),
    Sketcher.Constraint("Coincident", 6, 2, 7, 1),
    Sketcher.Constraint("Coincident", 7, 2, 0, 1),
    Sketcher.Constraint("Coincident", 8, 2, 9, 1),
    Sketcher.Constraint("Coincident", 9, 2, 10, 1),
    Sketcher.Constraint("Coincident", 10, 2, 11, 1),
    Sketcher.Constraint("Coincident", 11, 2, 12, 1),
    Sketcher.Constraint("Coincident", 12, 2, 13, 1),
    Sketcher.Constraint("Coincident", 13, 2, 14, 1),
    Sketcher.Constraint("Tangent", 14, 2, 15, 1),
    Sketcher.Constraint("Tangent", 15, 2, 8, 1),
    Sketcher.Constraint("Horizontal", 0),
    Sketcher.Constraint("Vertical", 2),
    Sketcher.Constraint("Horizontal", 3),
    Sketcher.Constraint("Vertical", 4),
    Sketcher.Constraint("Horizontal", 6),
    Sketcher.Constraint("Vertical", 7),
    Sketcher.Constraint("Horizontal", 8),
    Sketcher.Constraint("Vertical", 9),
    Sketcher.Constraint("Horizontal", 10),
    Sketcher.Constraint("Vertical", 12),
    Sketcher.Constraint("Horizontal", 13),
    Sketcher.Constraint("Vertical", 14),
    Sketcher.Constraint("Vertical", 16),
    Sketcher.Constraint("Coincident", 16, 1, 6, 2),
    Sketcher.Constraint("Coincident", 16, 2, 9, 2),
    Sketcher.Constraint("Equal", 5, 15),
    Sketcher.Constraint("Vertical", 5, 3, 15, 3),
    Sketcher.Constraint("Vertical", 0, 2, 10, 2),
    Sketcher.Constraint("Equal", 7, 9),
    Sketcher.Constraint("Equal", 2, 12),
    Sketcher.Constraint("Equal", 4, 14),
    Sketcher.Constraint("Radius", 5, 2.5),
    Sketcher.Constraint("DistanceX", 0, 1, 0, 2, 1.0),
    Sketcher.Constraint("DistanceY", 2, 1, 2, 2, 13.0),
    Sketcher.Constraint("DistanceY", 7, 2, 7, 1, 20.0),
    Sketcher.Constraint("DistanceY", 16, 2, 16, 1, 45.0),
    Sketcher.Constraint("DistanceY", 4, 1, 4, 2, 1.5),
    Sketcher.Constraint("DistanceY", -1, 1, 0, 2, 62.0),
    Sketcher.Constraint("DistanceX", 0, 2, 1, 2, 2.0),
    Sketcher.Constraint("DistanceX", 10, 2, 11, 2, 1.0),
    Sketcher.Constraint("DistanceX", 3, 1, 3, 2, 3.25),
    Sketcher.Constraint("DistanceX", -1, 1, 0, 2, 119.5),
])
sketch10.setExpression("Constraints[37]", "Params.sketch10_radius")
sketch10.setExpression("Constraints[38]", "Params.sketch10_width")
sketch10.setExpression("Constraints[39]", "Params.sketch10_height")
sketch10.setExpression("Constraints[40]", "Params.sketch10_height2")
sketch10.setExpression("Constraints[41]", "Params.sketch10_height3")
groove8 = body.newObject("PartDesign::Groove", "Groove007")
groove8.Profile = sketch10
groove8.ReferenceAxis = (sketch10, ["Axis0"])
groove8.setExpression("Angle", "Params.groove8_angle")

sketch11 = body.newObject("Sketcher::SketchObject", "Sketch010")
sketch11.AttachmentSupport = (doc.getObject("XY_Plane"), [""])
sketch11.MapMode = "FlatFace"
sketch11.AttachmentOffset = App.Placement(Vector(0, 0, 10.5), App.Rotation())
add_polygon(sketch11, [(51.2, 30), (45, 30), (45, 7), (48.5, 7), (48.5, 20), (52.2, 20), (52.2, 26), (51.2, 26)])
sketch11.addGeometry(Part.LineSegment(Vector(45, 30, 0), Vector(45, 7, 0)), True)
sketch11.addConstraint([
    Sketcher.Constraint("Horizontal", 0),
    Sketcher.Constraint("Vertical", 1),
    Sketcher.Constraint("Horizontal", 2),
    Sketcher.Constraint("Vertical", 3),
    Sketcher.Constraint("Horizontal", 4),
    Sketcher.Constraint("Vertical", 5),
    Sketcher.Constraint("Horizontal", 6),
    Sketcher.Constraint("Vertical", 7),
    Sketcher.Constraint("Vertical", 8),
    Sketcher.Constraint("Coincident", 8, 1, 0, 2),
    Sketcher.Constraint("Horizontal", 2, 2, 8, 2),
    Sketcher.Constraint("DistanceX", 6, 2, 6, 1, 1.0),
    Sketcher.Constraint("DistanceY", 1, 2, 1, 1, 23.0),
    Sketcher.Constraint("DistanceY", 3, 1, 3, 2, 13.0),
    Sketcher.Constraint("DistanceY", 5, 1, 5, 2, 6.0),
    Sketcher.Constraint("DistanceX", 2, 1, 2, 2, 3.5),
    Sketcher.Constraint("DistanceX", -1, 1, 0, 2, 45.0),
    Sketcher.Constraint("DistanceY", -1, 1, 0, 2, 30.0),
    Sketcher.Constraint("DistanceX", 0, 2, 0, 1, 6.25),
])
sketch11.setExpression("Constraints[19]", "Params.sketch11_width")
sketch11.setExpression("Constraints[20]", "Params.sketch11_height")
sketch11.setExpression("Constraints[21]", "Params.sketch11_height2")
sketch11.setExpression("Constraints[22]", "Params.sketch11_height3")
sketch11.setExpression("Constraints[23]", "Params.sketch11_width2")
groove9 = body.newObject("PartDesign::Groove", "Groove008")
groove9.Profile = sketch11
groove9.ReferenceAxis = (sketch11, ["Axis0"])
groove9.setExpression("Angle", "Params.groove9_angle")

sketch12 = body.newObject("Sketcher::SketchObject", "Sketch011")
sketch12.AttachmentSupport = (doc.getObject("XY_Plane"), [""])
sketch12.MapMode = "FlatFace"
sketch12.AttachmentOffset = App.Placement(Vector(0, 0, 10.5), App.Rotation())
add_polygon(sketch12, [(71.2, 30), (65, 30), (65, 7), (68.5, 7), (68.5, 20), (72.2, 20), (72.2, 26), (71.2, 26)])
sketch12.addGeometry(Part.LineSegment(Vector(65, 30, 0), Vector(65, 7, 0)), True)
sketch12.addConstraint([
    Sketcher.Constraint("Horizontal", 0),
    Sketcher.Constraint("Vertical", 1),
    Sketcher.Constraint("Horizontal", 2),
    Sketcher.Constraint("Vertical", 3),
    Sketcher.Constraint("Horizontal", 4),
    Sketcher.Constraint("Vertical", 5),
    Sketcher.Constraint("Horizontal", 6),
    Sketcher.Constraint("Vertical", 7),
    Sketcher.Constraint("Vertical", 8),
    Sketcher.Constraint("Coincident", 8, 1, 0, 2),
    Sketcher.Constraint("Horizontal", 2, 2, 8, 2),
    Sketcher.Constraint("DistanceX", 6, 2, 6, 1, 1.0),
    Sketcher.Constraint("DistanceY", 1, 2, 1, 1, 23.0),
    Sketcher.Constraint("DistanceY", 3, 1, 3, 2, 13.0),
    Sketcher.Constraint("DistanceY", 5, 1, 5, 2, 6.0),
    Sketcher.Constraint("DistanceX", 2, 1, 2, 2, 3.5),
    Sketcher.Constraint("DistanceX", -1, 1, 0, 2, 65.0),
    Sketcher.Constraint("DistanceY", -1, 1, 0, 2, 30.0),
    Sketcher.Constraint("DistanceX", 0, 2, 0, 1, 6.25),
])
sketch12.setExpression("Constraints[19]", "Params.sketch12_width")
sketch12.setExpression("Constraints[20]", "Params.sketch12_height")
sketch12.setExpression("Constraints[21]", "Params.sketch12_height2")
sketch12.setExpression("Constraints[22]", "Params.sketch12_height3")
sketch12.setExpression("Constraints[23]", "Params.sketch12_width2")
groove10 = body.newObject("PartDesign::Groove", "Groove009")
groove10.Profile = sketch12
groove10.ReferenceAxis = (sketch12, ["Axis0"])
groove10.setExpression("Angle", "Params.groove10_angle")

sketch13 = body.newObject("Sketcher::SketchObject", "Sketch012")
sketch13.AttachmentSupport = (doc.getObject("XY_Plane"), [""])
sketch13.MapMode = "FlatFace"
sketch13.AttachmentOffset = App.Placement(Vector(0, 0, 10.5), App.Rotation())
add_polygon(sketch13, [(91.2, 30), (85, 30), (85, 7), (88.5, 7), (88.5, 20), (92.2, 20), (92.2, 26), (91.2, 26)])
sketch13.addGeometry(Part.LineSegment(Vector(85, 30, 0), Vector(85, 7, 0)), True)
sketch13.addConstraint([
    Sketcher.Constraint("Horizontal", 0),
    Sketcher.Constraint("Vertical", 1),
    Sketcher.Constraint("Horizontal", 2),
    Sketcher.Constraint("Vertical", 3),
    Sketcher.Constraint("Horizontal", 4),
    Sketcher.Constraint("Vertical", 5),
    Sketcher.Constraint("Horizontal", 6),
    Sketcher.Constraint("Vertical", 7),
    Sketcher.Constraint("Vertical", 8),
    Sketcher.Constraint("Coincident", 8, 1, 0, 2),
    Sketcher.Constraint("Horizontal", 2, 2, 8, 2),
    Sketcher.Constraint("DistanceX", 6, 2, 6, 1, 1.0),
    Sketcher.Constraint("DistanceY", 1, 2, 1, 1, 23.0),
    Sketcher.Constraint("DistanceY", 3, 1, 3, 2, 13.0),
    Sketcher.Constraint("DistanceY", 5, 1, 5, 2, 6.0),
    Sketcher.Constraint("DistanceX", 2, 1, 2, 2, 3.5),
    Sketcher.Constraint("DistanceX", -1, 1, 0, 2, 85.0),
    Sketcher.Constraint("DistanceY", -1, 1, 0, 2, 30.0),
    Sketcher.Constraint("DistanceX", 0, 2, 0, 1, 6.25),
])
sketch13.setExpression("Constraints[19]", "Params.sketch13_width")
sketch13.setExpression("Constraints[20]", "Params.sketch13_height")
sketch13.setExpression("Constraints[21]", "Params.sketch13_height2")
sketch13.setExpression("Constraints[22]", "Params.sketch13_height3")
sketch13.setExpression("Constraints[23]", "Params.sketch13_width2")
groove11 = body.newObject("PartDesign::Groove", "Groove010")
groove11.Profile = sketch13
groove11.ReferenceAxis = (sketch13, ["Axis0"])
groove11.setExpression("Angle", "Params.groove11_angle")

sketch14 = body.newObject("Sketcher::SketchObject", "Sketch013")
sketch14.AttachmentSupport = (doc.getObject("XY_Plane"), [""])
sketch14.MapMode = "FlatFace"
sketch14.AttachmentOffset = App.Placement(Vector(0, 0, 10.5), App.Rotation())
add_polygon(sketch14, [(111.2, 30), (105, 30), (105, 7), (108.5, 7), (108.5, 20), (112.2, 20), (112.2, 26), (111.2, 26)])
sketch14.addGeometry(Part.LineSegment(Vector(105, 30, 0), Vector(105, 7, 0)), True)
sketch14.addConstraint([
    Sketcher.Constraint("Horizontal", 0),
    Sketcher.Constraint("Vertical", 1),
    Sketcher.Constraint("Horizontal", 2),
    Sketcher.Constraint("Vertical", 3),
    Sketcher.Constraint("Horizontal", 4),
    Sketcher.Constraint("Vertical", 5),
    Sketcher.Constraint("Horizontal", 6),
    Sketcher.Constraint("Vertical", 7),
    Sketcher.Constraint("Vertical", 8),
    Sketcher.Constraint("Coincident", 8, 1, 0, 2),
    Sketcher.Constraint("Horizontal", 2, 2, 8, 2),
    Sketcher.Constraint("DistanceX", 6, 2, 6, 1, 1.0),
    Sketcher.Constraint("DistanceY", 1, 2, 1, 1, 23.0),
    Sketcher.Constraint("DistanceY", 3, 1, 3, 2, 13.0),
    Sketcher.Constraint("DistanceY", 5, 1, 5, 2, 6.0),
    Sketcher.Constraint("DistanceX", 2, 1, 2, 2, 3.5),
    Sketcher.Constraint("DistanceX", -1, 1, 0, 2, 105.0),
    Sketcher.Constraint("DistanceY", -1, 1, 0, 2, 30.0),
    Sketcher.Constraint("DistanceX", 0, 2, 0, 1, 6.25),
])
sketch14.setExpression("Constraints[19]", "Params.sketch14_width")
sketch14.setExpression("Constraints[20]", "Params.sketch14_height")
sketch14.setExpression("Constraints[21]", "Params.sketch14_height2")
sketch14.setExpression("Constraints[22]", "Params.sketch14_height3")
sketch14.setExpression("Constraints[23]", "Params.sketch14_width2")
groove12 = body.newObject("PartDesign::Groove", "Groove011")
groove12.Profile = sketch14
groove12.ReferenceAxis = (sketch14, ["Axis0"])
groove12.setExpression("Angle", "Params.groove12_angle")

doc.recompute()
